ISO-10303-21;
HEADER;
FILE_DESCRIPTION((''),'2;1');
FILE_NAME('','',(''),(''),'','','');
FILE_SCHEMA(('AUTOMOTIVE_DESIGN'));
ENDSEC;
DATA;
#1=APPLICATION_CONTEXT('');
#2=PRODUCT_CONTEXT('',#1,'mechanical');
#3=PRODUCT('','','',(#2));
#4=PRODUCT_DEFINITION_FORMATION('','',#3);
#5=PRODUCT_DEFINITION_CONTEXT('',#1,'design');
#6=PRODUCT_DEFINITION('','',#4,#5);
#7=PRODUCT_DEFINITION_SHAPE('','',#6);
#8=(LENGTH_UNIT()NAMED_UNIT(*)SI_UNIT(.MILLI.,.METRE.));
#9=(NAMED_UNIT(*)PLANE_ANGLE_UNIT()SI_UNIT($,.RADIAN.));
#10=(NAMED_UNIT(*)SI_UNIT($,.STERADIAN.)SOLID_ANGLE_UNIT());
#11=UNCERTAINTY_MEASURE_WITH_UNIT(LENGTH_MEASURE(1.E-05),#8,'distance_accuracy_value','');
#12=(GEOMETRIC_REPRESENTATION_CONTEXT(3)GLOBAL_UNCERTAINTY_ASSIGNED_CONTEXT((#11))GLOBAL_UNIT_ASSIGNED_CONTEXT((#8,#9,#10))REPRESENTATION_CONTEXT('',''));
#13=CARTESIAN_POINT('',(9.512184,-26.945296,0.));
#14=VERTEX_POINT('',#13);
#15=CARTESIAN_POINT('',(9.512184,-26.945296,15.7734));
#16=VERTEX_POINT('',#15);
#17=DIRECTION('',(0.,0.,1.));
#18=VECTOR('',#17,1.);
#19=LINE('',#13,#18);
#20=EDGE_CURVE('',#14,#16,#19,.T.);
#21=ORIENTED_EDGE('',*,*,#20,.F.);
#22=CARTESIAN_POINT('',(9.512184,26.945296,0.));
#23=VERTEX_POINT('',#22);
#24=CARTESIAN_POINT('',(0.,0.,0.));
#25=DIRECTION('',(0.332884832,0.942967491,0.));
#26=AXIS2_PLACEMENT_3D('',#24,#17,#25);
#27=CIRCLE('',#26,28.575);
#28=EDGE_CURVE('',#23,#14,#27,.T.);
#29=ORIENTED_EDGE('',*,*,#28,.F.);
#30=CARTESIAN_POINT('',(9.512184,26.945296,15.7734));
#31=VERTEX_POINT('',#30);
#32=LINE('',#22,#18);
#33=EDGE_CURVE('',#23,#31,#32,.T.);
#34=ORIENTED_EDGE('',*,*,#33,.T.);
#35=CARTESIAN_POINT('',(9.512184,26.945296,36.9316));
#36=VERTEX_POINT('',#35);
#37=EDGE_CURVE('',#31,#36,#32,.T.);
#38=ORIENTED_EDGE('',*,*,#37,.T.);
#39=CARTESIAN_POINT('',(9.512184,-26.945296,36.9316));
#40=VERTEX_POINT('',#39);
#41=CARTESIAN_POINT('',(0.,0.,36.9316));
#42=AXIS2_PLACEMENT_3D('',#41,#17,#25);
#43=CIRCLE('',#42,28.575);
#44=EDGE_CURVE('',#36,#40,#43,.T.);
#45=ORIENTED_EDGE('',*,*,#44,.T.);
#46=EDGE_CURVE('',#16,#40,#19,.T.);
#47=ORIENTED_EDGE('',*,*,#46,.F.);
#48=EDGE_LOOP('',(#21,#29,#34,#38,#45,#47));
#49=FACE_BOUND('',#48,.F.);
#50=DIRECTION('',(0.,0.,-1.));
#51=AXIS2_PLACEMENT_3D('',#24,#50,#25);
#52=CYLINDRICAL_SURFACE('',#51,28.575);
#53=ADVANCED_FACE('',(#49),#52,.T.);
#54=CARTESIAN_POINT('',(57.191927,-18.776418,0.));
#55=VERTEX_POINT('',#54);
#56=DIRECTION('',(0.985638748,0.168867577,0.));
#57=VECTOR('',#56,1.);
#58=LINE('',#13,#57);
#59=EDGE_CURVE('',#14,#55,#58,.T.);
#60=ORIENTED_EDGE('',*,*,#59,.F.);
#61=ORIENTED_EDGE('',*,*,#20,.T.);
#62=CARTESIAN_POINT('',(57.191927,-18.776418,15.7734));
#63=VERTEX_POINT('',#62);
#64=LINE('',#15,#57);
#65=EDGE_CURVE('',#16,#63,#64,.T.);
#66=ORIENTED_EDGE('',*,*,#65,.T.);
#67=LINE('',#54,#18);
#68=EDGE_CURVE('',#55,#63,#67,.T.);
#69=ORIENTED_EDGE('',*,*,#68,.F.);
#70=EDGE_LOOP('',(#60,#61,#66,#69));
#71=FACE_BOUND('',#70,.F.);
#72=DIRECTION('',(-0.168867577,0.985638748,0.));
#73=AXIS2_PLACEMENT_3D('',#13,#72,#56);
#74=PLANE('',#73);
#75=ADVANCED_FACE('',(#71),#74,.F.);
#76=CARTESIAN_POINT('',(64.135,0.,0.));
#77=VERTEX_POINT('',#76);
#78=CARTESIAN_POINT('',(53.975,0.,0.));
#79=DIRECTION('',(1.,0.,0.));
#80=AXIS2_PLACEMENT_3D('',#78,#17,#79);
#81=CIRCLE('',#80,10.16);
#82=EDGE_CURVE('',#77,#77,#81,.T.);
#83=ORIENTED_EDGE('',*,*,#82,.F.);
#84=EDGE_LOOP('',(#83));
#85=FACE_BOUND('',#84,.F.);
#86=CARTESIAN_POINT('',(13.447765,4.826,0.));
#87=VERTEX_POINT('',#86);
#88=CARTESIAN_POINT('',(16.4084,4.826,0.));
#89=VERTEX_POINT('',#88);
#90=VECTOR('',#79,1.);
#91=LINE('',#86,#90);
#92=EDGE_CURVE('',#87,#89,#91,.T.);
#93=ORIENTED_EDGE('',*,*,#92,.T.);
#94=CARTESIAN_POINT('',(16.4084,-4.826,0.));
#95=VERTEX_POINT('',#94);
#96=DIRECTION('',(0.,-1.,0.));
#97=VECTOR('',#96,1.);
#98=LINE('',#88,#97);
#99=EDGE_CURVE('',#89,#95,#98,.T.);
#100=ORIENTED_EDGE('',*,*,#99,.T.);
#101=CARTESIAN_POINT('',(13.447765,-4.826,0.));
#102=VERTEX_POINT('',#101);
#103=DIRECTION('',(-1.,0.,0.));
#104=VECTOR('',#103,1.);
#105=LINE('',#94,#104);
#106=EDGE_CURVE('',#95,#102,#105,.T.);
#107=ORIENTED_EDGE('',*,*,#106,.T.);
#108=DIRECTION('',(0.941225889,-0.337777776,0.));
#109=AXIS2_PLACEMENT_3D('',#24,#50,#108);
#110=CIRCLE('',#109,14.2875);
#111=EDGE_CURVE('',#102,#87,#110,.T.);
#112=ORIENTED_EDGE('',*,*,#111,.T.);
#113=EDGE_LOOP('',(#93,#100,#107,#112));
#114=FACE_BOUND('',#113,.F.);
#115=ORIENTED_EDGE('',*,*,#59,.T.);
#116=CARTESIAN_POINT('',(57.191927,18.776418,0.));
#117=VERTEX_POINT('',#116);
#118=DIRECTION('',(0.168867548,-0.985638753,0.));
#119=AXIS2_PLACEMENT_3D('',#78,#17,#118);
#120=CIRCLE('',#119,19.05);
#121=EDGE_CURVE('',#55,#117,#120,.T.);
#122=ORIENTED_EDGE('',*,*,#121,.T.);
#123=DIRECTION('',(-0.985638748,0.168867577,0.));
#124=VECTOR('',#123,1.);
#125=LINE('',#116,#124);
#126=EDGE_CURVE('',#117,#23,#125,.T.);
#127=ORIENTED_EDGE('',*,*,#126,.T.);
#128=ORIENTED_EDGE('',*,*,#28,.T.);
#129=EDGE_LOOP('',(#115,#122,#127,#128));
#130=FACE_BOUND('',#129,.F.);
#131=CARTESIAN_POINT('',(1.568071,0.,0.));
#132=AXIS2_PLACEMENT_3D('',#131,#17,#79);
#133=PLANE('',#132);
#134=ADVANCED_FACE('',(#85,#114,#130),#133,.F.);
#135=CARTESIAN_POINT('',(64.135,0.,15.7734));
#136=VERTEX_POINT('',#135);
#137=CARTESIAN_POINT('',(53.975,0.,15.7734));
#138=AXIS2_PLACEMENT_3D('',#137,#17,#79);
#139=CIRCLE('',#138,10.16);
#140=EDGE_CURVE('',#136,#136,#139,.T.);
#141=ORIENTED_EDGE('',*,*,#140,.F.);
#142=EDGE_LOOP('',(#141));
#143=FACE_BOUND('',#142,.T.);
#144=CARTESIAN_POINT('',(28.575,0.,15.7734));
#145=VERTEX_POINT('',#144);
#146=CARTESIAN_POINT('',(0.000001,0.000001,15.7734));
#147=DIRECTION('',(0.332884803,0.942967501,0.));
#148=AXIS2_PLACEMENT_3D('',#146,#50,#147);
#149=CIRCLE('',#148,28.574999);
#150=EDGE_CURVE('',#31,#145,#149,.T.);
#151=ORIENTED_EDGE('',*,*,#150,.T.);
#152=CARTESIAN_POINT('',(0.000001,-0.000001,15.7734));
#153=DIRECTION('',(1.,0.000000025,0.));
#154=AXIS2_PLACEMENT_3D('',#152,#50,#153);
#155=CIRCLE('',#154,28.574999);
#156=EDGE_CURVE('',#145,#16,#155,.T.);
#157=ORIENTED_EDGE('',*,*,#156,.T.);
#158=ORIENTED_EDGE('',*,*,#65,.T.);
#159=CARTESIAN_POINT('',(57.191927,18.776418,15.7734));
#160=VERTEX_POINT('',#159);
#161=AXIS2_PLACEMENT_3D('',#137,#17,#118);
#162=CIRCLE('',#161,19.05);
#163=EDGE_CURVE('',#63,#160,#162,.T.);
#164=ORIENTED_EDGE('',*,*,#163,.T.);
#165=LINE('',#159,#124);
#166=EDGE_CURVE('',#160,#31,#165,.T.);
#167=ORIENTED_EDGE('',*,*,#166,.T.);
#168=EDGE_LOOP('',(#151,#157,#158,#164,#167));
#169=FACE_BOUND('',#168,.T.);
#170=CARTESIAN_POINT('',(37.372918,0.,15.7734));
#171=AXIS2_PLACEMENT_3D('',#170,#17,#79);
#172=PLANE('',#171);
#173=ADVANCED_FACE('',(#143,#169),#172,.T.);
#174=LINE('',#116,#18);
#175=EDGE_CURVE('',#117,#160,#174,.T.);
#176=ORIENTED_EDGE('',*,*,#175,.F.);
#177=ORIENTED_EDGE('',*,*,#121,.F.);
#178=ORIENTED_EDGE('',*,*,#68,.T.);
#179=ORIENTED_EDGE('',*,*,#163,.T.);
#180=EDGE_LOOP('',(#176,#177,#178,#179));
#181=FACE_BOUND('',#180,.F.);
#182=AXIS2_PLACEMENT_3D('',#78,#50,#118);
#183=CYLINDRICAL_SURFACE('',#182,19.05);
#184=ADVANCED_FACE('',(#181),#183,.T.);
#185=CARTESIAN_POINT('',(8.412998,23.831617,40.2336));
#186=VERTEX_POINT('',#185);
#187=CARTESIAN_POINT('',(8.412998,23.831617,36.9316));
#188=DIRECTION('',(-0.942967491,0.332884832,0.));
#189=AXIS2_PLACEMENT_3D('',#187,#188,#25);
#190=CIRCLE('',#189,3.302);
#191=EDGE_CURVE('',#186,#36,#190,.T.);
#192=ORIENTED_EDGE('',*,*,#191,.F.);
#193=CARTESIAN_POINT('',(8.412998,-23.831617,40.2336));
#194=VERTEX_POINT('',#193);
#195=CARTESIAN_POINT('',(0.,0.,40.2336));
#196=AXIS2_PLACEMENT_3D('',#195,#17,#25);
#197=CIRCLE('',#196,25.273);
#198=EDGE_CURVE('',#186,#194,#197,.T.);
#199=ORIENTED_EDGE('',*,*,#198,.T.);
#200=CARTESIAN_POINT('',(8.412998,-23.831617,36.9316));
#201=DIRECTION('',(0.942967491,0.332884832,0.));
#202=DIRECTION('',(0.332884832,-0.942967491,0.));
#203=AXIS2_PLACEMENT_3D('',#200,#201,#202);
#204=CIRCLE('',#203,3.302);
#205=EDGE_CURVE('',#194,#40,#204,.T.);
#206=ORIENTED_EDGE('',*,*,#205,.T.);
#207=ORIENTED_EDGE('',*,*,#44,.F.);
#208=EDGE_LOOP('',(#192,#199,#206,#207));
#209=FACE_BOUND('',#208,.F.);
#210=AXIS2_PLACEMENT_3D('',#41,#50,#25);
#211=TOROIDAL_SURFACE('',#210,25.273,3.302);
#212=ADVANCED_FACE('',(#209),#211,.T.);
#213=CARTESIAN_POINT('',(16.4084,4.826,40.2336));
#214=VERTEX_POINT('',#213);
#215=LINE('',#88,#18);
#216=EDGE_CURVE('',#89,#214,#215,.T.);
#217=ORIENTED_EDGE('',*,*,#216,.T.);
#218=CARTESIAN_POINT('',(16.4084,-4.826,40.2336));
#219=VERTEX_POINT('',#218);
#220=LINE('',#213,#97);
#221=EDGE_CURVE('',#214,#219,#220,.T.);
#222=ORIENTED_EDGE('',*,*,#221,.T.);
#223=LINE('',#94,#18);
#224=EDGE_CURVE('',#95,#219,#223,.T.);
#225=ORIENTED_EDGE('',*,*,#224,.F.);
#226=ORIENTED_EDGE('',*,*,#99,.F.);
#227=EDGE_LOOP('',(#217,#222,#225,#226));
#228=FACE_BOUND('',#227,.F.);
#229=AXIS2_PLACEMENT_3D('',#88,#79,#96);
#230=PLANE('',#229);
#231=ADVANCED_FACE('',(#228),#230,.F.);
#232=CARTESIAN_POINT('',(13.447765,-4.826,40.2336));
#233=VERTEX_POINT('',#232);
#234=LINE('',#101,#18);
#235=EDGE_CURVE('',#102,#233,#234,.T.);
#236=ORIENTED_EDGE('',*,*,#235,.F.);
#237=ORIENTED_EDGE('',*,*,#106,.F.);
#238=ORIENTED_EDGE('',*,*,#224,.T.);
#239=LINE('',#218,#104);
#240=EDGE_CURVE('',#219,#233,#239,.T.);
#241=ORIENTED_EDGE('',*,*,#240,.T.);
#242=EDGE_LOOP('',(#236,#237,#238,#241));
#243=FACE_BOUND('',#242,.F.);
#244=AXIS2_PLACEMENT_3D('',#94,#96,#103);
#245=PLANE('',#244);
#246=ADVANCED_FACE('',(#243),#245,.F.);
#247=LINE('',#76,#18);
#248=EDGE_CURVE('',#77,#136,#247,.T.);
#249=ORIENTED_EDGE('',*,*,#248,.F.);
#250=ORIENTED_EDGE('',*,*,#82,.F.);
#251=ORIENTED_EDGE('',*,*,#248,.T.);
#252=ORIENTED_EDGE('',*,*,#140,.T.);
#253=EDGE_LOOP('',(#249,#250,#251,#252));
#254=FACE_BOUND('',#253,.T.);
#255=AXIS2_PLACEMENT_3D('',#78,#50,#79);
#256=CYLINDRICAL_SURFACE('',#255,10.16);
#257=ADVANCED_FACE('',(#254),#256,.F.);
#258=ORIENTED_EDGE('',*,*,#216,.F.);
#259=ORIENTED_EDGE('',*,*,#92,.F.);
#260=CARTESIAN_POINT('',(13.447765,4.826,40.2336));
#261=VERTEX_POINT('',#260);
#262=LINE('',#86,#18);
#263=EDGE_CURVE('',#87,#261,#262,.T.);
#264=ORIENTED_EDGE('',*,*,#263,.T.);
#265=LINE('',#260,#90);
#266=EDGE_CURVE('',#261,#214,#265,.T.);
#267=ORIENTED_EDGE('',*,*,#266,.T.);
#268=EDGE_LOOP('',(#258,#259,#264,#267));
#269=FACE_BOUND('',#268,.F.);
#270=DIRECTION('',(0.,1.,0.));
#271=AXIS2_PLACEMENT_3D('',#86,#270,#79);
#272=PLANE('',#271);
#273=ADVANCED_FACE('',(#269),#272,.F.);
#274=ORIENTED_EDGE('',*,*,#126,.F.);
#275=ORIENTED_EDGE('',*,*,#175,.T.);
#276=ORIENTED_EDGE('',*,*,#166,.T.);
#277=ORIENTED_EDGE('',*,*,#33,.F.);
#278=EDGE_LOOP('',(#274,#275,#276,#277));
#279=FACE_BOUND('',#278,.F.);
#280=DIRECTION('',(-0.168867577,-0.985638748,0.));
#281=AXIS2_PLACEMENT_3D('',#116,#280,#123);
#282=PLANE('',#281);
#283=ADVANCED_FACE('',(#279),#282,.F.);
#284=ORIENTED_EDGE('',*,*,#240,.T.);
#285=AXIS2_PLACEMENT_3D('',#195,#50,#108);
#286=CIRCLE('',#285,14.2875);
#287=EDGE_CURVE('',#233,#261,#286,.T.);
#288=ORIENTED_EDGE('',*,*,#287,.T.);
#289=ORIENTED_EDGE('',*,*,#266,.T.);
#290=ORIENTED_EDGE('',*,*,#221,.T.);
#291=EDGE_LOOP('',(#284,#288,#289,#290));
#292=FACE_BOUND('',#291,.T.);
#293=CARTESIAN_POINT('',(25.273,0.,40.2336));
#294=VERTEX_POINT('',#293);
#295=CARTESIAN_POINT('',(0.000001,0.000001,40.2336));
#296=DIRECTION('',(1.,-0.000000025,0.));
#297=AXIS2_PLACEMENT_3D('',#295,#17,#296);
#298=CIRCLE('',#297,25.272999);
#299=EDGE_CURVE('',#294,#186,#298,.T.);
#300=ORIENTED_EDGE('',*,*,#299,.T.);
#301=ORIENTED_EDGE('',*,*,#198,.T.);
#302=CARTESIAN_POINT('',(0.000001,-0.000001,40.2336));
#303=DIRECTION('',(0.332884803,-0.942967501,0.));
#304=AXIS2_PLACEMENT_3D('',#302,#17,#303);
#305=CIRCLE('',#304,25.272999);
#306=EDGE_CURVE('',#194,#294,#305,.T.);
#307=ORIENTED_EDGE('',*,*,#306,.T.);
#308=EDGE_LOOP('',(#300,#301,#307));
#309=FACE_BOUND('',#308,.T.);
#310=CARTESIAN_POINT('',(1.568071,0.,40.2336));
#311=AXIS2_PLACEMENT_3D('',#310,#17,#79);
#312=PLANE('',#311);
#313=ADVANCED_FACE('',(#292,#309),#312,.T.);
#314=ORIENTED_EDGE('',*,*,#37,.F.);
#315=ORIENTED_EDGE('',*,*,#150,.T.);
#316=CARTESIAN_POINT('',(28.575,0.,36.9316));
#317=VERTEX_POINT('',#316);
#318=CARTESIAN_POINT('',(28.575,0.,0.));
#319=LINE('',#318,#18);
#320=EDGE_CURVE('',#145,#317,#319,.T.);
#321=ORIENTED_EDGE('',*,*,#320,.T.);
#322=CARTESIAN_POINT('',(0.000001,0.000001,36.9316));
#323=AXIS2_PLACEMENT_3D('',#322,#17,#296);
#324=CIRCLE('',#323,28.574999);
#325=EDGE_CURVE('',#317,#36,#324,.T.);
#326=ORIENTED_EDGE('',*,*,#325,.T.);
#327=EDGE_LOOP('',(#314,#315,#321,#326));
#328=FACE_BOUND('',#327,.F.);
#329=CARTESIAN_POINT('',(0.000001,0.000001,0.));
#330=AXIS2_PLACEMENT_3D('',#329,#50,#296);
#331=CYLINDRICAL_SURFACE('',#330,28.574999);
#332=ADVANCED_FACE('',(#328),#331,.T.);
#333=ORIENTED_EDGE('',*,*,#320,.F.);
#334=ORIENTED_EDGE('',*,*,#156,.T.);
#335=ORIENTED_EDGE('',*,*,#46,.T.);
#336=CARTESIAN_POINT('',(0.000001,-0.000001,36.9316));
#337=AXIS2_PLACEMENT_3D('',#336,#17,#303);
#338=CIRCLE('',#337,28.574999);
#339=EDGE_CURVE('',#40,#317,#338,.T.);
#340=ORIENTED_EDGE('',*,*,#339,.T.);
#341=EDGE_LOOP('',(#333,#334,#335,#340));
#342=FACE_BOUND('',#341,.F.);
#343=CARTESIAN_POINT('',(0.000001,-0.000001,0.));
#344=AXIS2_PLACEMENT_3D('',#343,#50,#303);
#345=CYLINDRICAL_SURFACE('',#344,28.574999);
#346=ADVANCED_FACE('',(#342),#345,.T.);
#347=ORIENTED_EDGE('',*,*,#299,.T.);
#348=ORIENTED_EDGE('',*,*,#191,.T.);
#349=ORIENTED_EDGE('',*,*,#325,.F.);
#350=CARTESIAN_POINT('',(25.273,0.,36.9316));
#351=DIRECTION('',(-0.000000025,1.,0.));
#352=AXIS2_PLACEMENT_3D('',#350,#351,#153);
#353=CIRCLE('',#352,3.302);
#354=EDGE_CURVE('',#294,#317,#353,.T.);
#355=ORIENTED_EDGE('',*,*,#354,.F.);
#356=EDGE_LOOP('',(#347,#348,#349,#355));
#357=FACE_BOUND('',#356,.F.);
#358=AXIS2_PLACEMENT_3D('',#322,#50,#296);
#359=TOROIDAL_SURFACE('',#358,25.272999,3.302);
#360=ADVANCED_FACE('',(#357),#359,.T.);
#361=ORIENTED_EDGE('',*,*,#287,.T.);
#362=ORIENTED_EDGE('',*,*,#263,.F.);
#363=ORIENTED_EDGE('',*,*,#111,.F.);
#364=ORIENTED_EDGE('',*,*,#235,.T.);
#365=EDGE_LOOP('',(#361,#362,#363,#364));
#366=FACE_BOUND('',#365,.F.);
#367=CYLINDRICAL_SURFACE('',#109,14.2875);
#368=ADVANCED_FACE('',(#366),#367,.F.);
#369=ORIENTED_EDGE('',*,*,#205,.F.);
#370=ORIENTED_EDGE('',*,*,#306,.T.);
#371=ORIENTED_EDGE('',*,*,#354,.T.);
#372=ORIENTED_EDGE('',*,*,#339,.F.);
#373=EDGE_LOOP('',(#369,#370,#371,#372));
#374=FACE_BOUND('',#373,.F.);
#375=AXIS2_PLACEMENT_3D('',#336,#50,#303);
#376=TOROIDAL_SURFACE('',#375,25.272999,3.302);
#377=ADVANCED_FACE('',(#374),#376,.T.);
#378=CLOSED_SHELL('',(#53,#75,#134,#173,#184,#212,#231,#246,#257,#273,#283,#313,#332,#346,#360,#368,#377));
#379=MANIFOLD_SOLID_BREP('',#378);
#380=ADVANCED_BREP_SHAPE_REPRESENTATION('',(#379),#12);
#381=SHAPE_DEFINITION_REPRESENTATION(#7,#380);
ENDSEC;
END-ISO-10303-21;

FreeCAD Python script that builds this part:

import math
import FreeCAD as App
import Part
import Sketcher
Q = App.Units.Quantity


def edges_at(feature, points):
    """Names of the edges that pass closest to the given points."""
    edges = feature.Shape.Edges
    near = lambda p: min(range(len(edges)), key=lambda i: edges[i].distToShape(Part.Vertex(*p))[0])
    return sorted({f"Edge{near(p) + 1}" for p in points})

doc = App.newDocument("Part")
body = doc.addObject("PartDesign::Body", "Body")

sketch1 = body.newObject("Sketcher::SketchObject", "Sketch")
sketch1.AttachmentSupport = (doc.getObject("XY_Plane"), [""])
sketch1.MapMode = "FlatFace"
sketch1.addGeometry([
    Part.ArcOfCircle(Part.Circle(App.Vector(0, 0, 0), App.Vector(0, 0, 1), 29), math.radians(0), math.radians(71)),
    Part.ArcOfCircle(Part.Circle(App.Vector(0, 0, 0), App.Vector(0, 0, 1), 29), math.radians(-71), math.radians(0)),
    Part.LineSegment(App.Vector(10, -27, 0), App.Vector(57, -19, 0)),
    Part.ArcOfCircle(Part.Circle(App.Vector(54, 0, 0), App.Vector(0, 0, 1), 19), math.radians(-80), math.radians(80)),
    Part.LineSegment(App.Vector(57, 19, 0), App.Vector(10, 27, 0)),
    Part.Circle(App.Vector(54, 0, 0), App.Vector(0, 0, 1), 10),
], False)
sketch1.addConstraint([
    Sketcher.Constraint("Tangent", 0, 1, 1, 2),
    Sketcher.Constraint("Coincident", 1, 1, 2, 1),
    Sketcher.Constraint("Tangent", 2, 2, 3, 1),
    Sketcher.Constraint("Tangent", 3, 2, 4, 1),
    Sketcher.Constraint("Coincident", 4, 2, 0, 2),
    Sketcher.Constraint("Coincident", 0, 3, -1, 1),
    Sketcher.Constraint("Coincident", 5, 3, 3, 3),
    Sketcher.Constraint("Equal", 0, 1),
    Sketcher.Constraint("Symmetric", 2, 2, 3, 2, -1),
    Sketcher.Constraint("PointOnObject", 0, 1, -1),
    Sketcher.Constraint("Diameter", 5, Q("0.8 in")),
    Sketcher.Constraint("Radius", 3, Q("0.75 in")),
    Sketcher.Constraint("Radius", 0, Q("1.125 in")),
    Sketcher.Constraint("DistanceX", 0, 1, 5, 3, Q("1 in")),
    Sketcher.Constraint("Distance", 2, Q("48.374461 mm")),
])
pad1 = body.newObject("PartDesign::Pad", "Pad")
pad1.Profile = sketch1
pad1.Length = Q("0.621 in")

sketch2 = body.newObject("Sketcher::SketchObject", "Sketch001")
sketch2.AttachmentSupport = (doc.getObject("XY_Plane"), [""])
sketch2.MapMode = "FlatFace"
sketch2.addGeometry([
    Part.ArcOfCircle(Part.Circle(App.Vector(0, 0, 0), App.Vector(0, 0, 1), 28.6), math.radians(-71), math.radians(0)),
    Part.ArcOfCircle(Part.Circle(App.Vector(0, 0, 0), App.Vector(0, 0, 1), 28.6), math.radians(0), math.radians(71)),
    Part.ArcOfCircle(Part.Circle(App.Vector(0, 0, 0), App.Vector(0, 0, 1), 28.6), math.radians(71), math.radians(289)),
    Part.LineSegment(App.Vector(16.4, -4.8, 0), App.Vector(13.4, -4.8, 0)),
    Part.ArcOfCircle(Part.Circle(App.Vector(0, 0, 0), App.Vector(0, 0, 1), 14.3), math.radians(20), math.radians(340)),
    Part.LineSegment(App.Vector(13.4, 4.8, 0), App.Vector(16.4, 4.8, 0)),
    Part.LineSegment(App.Vector(16.4, 4.8, 0), App.Vector(16.4, -4.8, 0)),
], False)
sketch2.addConstraint([
    Sketcher.Constraint("Tangent", 0, 2, 1, 1),
    Sketcher.Constraint("Tangent", 1, 2, 2, 1),
    Sketcher.Constraint("Tangent", 2, 2, 0, 1),
    Sketcher.Constraint("Coincident", 3, 2, 4, 2),
    Sketcher.Constraint("Coincident", 4, 1, 5, 1),
    Sketcher.Constraint("Coincident", 5, 2, 6, 1),
    Sketcher.Constraint("Coincident", 6, 2, 3, 1),
    Sketcher.Constraint("Horizontal", 3),
    Sketcher.Constraint("Horizontal", 5),
    Sketcher.Constraint("Vertical", 6),
    Sketcher.Constraint("Coincident", 0, 3, -1, 1),
    Sketcher.Constraint("Coincident", 4, 3, -1, 1),
    Sketcher.Constraint("PointOnObject", 0, 2, -1),
    Sketcher.Constraint("Vertical", 1, 2, 2, 2),
    Sketcher.Constraint("Vertical", 3, 2, 4, 1),
    Sketcher.Constraint("Radius", 0, Q("1.125 in")),
    Sketcher.Constraint("Radius", 4, Q("0.5625 in")),
    Sketcher.Constraint("DistanceY", 6, 2, 6, 1, Q("0.38 in")),
    Sketcher.Constraint("DistanceX", -1, 1, 5, 2, Q("0.646 in")),
    Sketcher.Constraint("DistanceX", -1, 1, 1, 2, Q("9.512184 mm")),
])
pad2 = body.newObject("PartDesign::Pad", "Pad001")
pad2.Profile = sketch2
pad2.Length = Q("1.584 in")
doc.recompute()

fillet = body.newObject("PartDesign::Fillet", "Fillet")
fillet.Base = (pad2, edges_at(pad2, [(-28.575, 0, 40.234)]))
fillet.Radius = Q("0.13 in")

doc.recompute()
